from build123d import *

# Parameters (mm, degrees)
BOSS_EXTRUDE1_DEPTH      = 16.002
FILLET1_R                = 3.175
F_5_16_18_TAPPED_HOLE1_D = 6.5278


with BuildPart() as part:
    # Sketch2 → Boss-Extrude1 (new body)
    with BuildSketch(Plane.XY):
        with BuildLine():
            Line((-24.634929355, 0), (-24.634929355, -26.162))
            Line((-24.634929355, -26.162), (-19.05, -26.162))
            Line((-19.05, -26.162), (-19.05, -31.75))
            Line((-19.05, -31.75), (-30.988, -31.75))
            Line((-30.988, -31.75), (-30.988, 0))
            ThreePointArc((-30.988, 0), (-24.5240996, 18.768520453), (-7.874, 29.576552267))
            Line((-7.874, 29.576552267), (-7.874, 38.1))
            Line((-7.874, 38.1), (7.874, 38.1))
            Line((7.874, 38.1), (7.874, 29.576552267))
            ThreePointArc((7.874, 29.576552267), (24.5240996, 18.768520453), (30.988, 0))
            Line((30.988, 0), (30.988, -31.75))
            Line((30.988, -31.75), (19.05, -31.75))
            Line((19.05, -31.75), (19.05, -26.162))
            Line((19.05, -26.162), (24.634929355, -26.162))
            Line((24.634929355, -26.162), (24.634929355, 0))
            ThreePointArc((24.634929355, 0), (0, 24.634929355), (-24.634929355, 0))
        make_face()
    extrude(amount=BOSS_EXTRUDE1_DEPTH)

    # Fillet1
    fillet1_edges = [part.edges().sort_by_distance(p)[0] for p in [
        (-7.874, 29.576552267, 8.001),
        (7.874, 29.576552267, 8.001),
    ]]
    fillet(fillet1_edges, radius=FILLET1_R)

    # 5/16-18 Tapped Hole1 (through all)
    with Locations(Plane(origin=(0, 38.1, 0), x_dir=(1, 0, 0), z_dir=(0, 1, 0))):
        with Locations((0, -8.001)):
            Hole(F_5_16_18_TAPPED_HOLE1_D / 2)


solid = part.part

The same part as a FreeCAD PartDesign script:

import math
import FreeCAD as App
import Part
import Sketcher
Q = App.Units.Quantity


def edges_at(feature, points):
    """Names of the edges that pass closest to the given points."""
    edges = feature.Shape.Edges
    near = lambda p: min(range(len(edges)), key=lambda i: edges[i].distToShape(Part.Vertex(*p))[0])
    return sorted({f"Edge{near(p) + 1}" for p in points})

doc = App.newDocument("Part")
body = doc.addObject("PartDesign::Body", "Body")

# Sketch on XY plane
sketch1 = body.newObject("Sketcher::SketchObject", "Sketch")
sketch1.AttachmentSupport = (doc.getObject("XY_Plane"), [""])
sketch1.MapMode = "FlatFace"
sketch1.addGeometry(Part.LineSegment(App.Vector(-25, -26, 0), App.Vector(-25, 0, 0)), False)
sketch1.addGeometry(Part.ArcOfCircle(Part.Circle(App.Vector(0, 0, 0), App.Vector(0, 0, 1), 25), math.radians(0), math.radians(180)), False)
sketch1.addGeometry(Part.LineSegment(App.Vector(25, 0, 0), App.Vector(25, -26, 0)), False)
sketch1.addGeometry(Part.LineSegment(App.Vector(25, -26, 0), App.Vector(19, -26, 0)), False)
sketch1.addGeometry(Part.LineSegment(App.Vector(19, -26, 0), App.Vector(19, -32, 0)), False)
sketch1.addGeometry(Part.LineSegment(App.Vector(19, -32, 0), App.Vector(31, -32, 0)), False)
sketch1.addGeometry(Part.LineSegment(App.Vector(31, -32, 0), App.Vector(31, 0, 0)), False)
sketch1.addGeometry(Part.ArcOfCircle(Part.Circle(App.Vector(1, 0, 0), App.Vector(0, 0, 1), 30), math.radians(0), math.radians(76)), False)
sketch1.addGeometry(Part.LineSegment(App.Vector(8, 30, 0), App.Vector(8, 38, 0)), False)
sketch1.addGeometry(Part.LineSegment(App.Vector(8, 38, 0), App.Vector(-8, 38, 0)), False)
sketch1.addGeometry(Part.LineSegment(App.Vector(-8, 38, 0), App.Vector(-8, 30, 0)), False)
sketch1.addGeometry(Part.ArcOfCircle(Part.Circle(App.Vector(-1, 0, 0), App.Vector(0, 0, 1), 30), math.radians(104), math.radians(180)), False)
sketch1.addGeometry(Part.LineSegment(App.Vector(-31, 0, 0), App.Vector(-31, -32, 0)), False)
sketch1.addGeometry(Part.LineSegment(App.Vector(-31, -32, 0), App.Vector(-19, -32, 0)), False)
sketch1.addGeometry(Part.LineSegment(App.Vector(-19, -32, 0), App.Vector(-19, -26, 0)), False)
sketch1.addGeometry(Part.LineSegment(App.Vector(-19, -26, 0), App.Vector(-25, -26, 0)), False)
sketch1.addConstraint(Sketcher.Constraint("Tangent", 0, 2, 1, 2))
sketch1.addConstraint(Sketcher.Constraint("Tangent", 1, 1, 2, 1))
sketch1.addConstraint(Sketcher.Constraint("Coincident", 2, 2, 3, 1))
sketch1.addConstraint(Sketcher.Constraint("Coincident", 3, 2, 4, 1))
sketch1.addConstraint(Sketcher.Constraint("Coincident", 4, 2, 5, 1))
sketch1.addConstraint(Sketcher.Constraint("Coincident", 5, 2, 6, 1))
sketch1.addConstraint(Sketcher.Constraint("Tangent", 6, 2, 7, 1))
sketch1.addConstraint(Sketcher.Constraint("Coincident", 7, 2, 8, 1))
sketch1.addConstraint(Sketcher.Constraint("Coincident", 8, 2, 9, 1))
sketch1.addConstraint(Sketcher.Constraint("Coincident", 9, 2, 10, 1))
sketch1.addConstraint(Sketcher.Constraint("Coincident", 10, 2, 11, 1))
sketch1.addConstraint(Sketcher.Constraint("Tangent", 11, 2, 12, 1))
sketch1.addConstraint(Sketcher.Constraint("Coincident", 12, 2, 13, 1))
sketch1.addConstraint(Sketcher.Constraint("Coincident", 13, 2, 14, 1))
sketch1.addConstraint(Sketcher.Constraint("Coincident", 14, 2, 15, 1))
sketch1.addConstraint(Sketcher.Constraint("Coincident", 15, 2, 0, 1))
sketch1.addConstraint(Sketcher.Constraint("Vertical", 0))
sketch1.addConstraint(Sketcher.Constraint("Vertical", 2))
sketch1.addConstraint(Sketcher.Constraint("Horizontal", 3))
sketch1.addConstraint(Sketcher.Constraint("Vertical", 4))
sketch1.addConstraint(Sketcher.Constraint("Horizontal", 5))
sketch1.addConstraint(Sketcher.Constraint("Vertical", 6))
sketch1.addConstraint(Sketcher.Constraint("Vertical", 8))
sketch1.addConstraint(Sketcher.Constraint("Horizontal", 9))
sketch1.addConstraint(Sketcher.Constraint("Vertical", 10))
sketch1.addConstraint(Sketcher.Constraint("Vertical", 12))
sketch1.addConstraint(Sketcher.Constraint("Horizontal", 13))
sketch1.addConstraint(Sketcher.Constraint("Vertical", 14))
sketch1.addConstraint(Sketcher.Constraint("Horizontal", 15))
sketch1.addConstraint(Sketcher.Constraint("Coincident", 1, 3, -1, 1))
sketch1.addConstraint(Sketcher.Constraint("Equal", 7, 11))
sketch1.addConstraint(Sketcher.Constraint("Symmetric", 7, 3, 11, 3, -1, 1))
sketch1.addConstraint(Sketcher.Constraint("Symmetric", 7, 2, 10, 2, -2))
sketch1.addConstraint(Sketcher.Constraint("Symmetric", 4, 2, 13, 2, -2))
sketch1.addConstraint(Sketcher.Constraint("Horizontal", 3, 2, 14, 2))
sketch1.addConstraint(Sketcher.Constraint("Radius", 7, Q("1.2 in")))
sketch1.addConstraint(Sketcher.Constraint("DistanceX", 5, 1, 5, 2, Q("0.47 in")))
sketch1.addConstraint(Sketcher.Constraint("DistanceX", 9, 2, 9, 1, Q("0.62 in")))
sketch1.addConstraint(Sketcher.Constraint("DistanceY", 0, 1, 0, 2, Q("1.03 in")))
sketch1.addConstraint(Sketcher.Constraint("DistanceY", 4, 2, 4, 1, Q("0.22 in")))
sketch1.addConstraint(Sketcher.Constraint("DistanceY", -1, 1, 8, 2, Q("1.5 in")))
sketch1.addConstraint(Sketcher.Constraint("DistanceX", -1, 1, 7, 3, Q("0.02 in")))
sketch1.addConstraint(Sketcher.Constraint("Radius", 1, 24.634929))
pad1 = body.newObject("PartDesign::Pad", "Pad")
pad1.Profile = sketch1
pad1.Length = Q("0.63 in")
doc.recompute()

fillet = body.newObject("PartDesign::Fillet", "Fillet")
fillet.Base = (pad1, edges_at(pad1, [(-7.874, 29.577, 8.001), (7.874, 29.577, 8.001)]))
fillet.Radius = Q("0.125 in")

# Sketch on XZ plane
sketch2 = body.newObject("Sketcher::SketchObject", "Sketch001")
sketch2.AttachmentSupport = (doc.getObject("XZ_Plane"), [""])
sketch2.MapMode = "FlatFace"
sketch2.AttachmentOffset = App.Placement(App.Vector(0, 0, -1.5 * 25.4), App.Rotation())
sketch2.addGeometry(Part.Circle(App.Vector(0, 8, 0), App.Vector(0, 0, 1), 3.3), False)
sketch2.addConstraint(Sketcher.Constraint("PointOnObject", 0, 3, -2))
sketch2.addConstraint(Sketcher.Constraint("Diameter", 0, Q("0.257 in")))
sketch2.addConstraint(Sketcher.Constraint("DistanceY", -1, 1, 0, 3, Q("0.315 in")))
doc.recompute()
hole = body.newObject("PartDesign::Hole", "Hole")
hole.Profile = sketch2
hole.ThreadType = "None"
hole.Diameter = Q("0.257 in")
hole.DepthType = "ThroughAll"
hole.Reversed = True

doc.recompute()
